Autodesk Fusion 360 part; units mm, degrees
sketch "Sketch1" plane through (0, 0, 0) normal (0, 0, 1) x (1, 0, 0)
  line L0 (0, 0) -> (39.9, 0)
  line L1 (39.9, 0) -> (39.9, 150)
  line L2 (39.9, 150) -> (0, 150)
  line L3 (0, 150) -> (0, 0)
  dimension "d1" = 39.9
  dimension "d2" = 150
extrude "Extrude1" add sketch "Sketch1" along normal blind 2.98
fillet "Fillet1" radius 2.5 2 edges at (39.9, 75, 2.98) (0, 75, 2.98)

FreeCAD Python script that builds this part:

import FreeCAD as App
import Part
import Sketcher


def edges_at(feature, points):
    """Names of the edges that pass closest to the given points."""
    edges = feature.Shape.Edges
    near = lambda p: min(range(len(edges)), key=lambda i: edges[i].distToShape(Part.Vertex(*p))[0])
    return sorted({f"Edge{near(p) + 1}" for p in points})

doc = App.newDocument("Part")
params = doc.addObject("Spreadsheet::Sheet", "Params")
for row, (alias, value) in enumerate([
    ("sketch1_height", "150 mm"),
    ("sketch1_width", "39.9 mm"),
    ("pad1_length", "2.98 mm"),
    ("fillet_radius", "2.5 mm"),
], start=1):
    params.set(f"A{row}", alias)
    params.set(f"B{row}", "=" + value)
    params.setAlias(f"B{row}", alias)

body = doc.addObject("PartDesign::Body", "Body")

# Sketch on XY plane
sketch1 = body.newObject("Sketcher::SketchObject", "Sketch")
sketch1.AttachmentSupport = (doc.getObject("XY_Plane"), [""])
sketch1.MapMode = "FlatFace"
sketch1.addGeometry([
    Part.LineSegment(App.Vector(0, 150, 0), App.Vector(0, 0, 0)),
    Part.LineSegment(App.Vector(0, 0, 0), App.Vector(40, 0, 0)),
    Part.LineSegment(App.Vector(40, 0, 0), App.Vector(40, 150, 0)),
    Part.LineSegment(App.Vector(40, 150, 0), App.Vector(0, 150, 0)),
], False)
sketch1.addConstraint([
    Sketcher.Constraint("Coincident", 0, 2, 1, 1),
    Sketcher.Constraint("Coincident", 1, 2, 2, 1),
    Sketcher.Constraint("Coincident", 2, 2, 3, 1),
    Sketcher.Constraint("Coincident", 3, 2, 0, 1),
    Sketcher.Constraint("Vertical", 0),
    Sketcher.Constraint("Horizontal", 1),
    Sketcher.Constraint("Vertical", 2),
    Sketcher.Constraint("Horizontal", 3),
    Sketcher.Constraint("Coincident", 0, 2, -1, 1),
    Sketcher.Constraint("DistanceY", 0, 2, 0, 1, 150.0),
    Sketcher.Constraint("DistanceX", 1, 1, 1, 2, 39.9),
])
sketch1.setExpression("Constraints[9]", "Params.sketch1_height")
sketch1.setExpression("Constraints[10]", "Params.sketch1_width")
pad1 = body.newObject("PartDesign::Pad", "Pad")
pad1.Profile = sketch1
pad1.setExpression("Length", "Params.pad1_length")
doc.recompute()

fillet = body.newObject("PartDesign::Fillet", "Fillet")
fillet.Base = (pad1, edges_at(pad1, [(39.9, 75, 2.98), (0, 75, 2.98)]))
fillet.setExpression("Radius", "Params.fillet_radius")

doc.recompute()
